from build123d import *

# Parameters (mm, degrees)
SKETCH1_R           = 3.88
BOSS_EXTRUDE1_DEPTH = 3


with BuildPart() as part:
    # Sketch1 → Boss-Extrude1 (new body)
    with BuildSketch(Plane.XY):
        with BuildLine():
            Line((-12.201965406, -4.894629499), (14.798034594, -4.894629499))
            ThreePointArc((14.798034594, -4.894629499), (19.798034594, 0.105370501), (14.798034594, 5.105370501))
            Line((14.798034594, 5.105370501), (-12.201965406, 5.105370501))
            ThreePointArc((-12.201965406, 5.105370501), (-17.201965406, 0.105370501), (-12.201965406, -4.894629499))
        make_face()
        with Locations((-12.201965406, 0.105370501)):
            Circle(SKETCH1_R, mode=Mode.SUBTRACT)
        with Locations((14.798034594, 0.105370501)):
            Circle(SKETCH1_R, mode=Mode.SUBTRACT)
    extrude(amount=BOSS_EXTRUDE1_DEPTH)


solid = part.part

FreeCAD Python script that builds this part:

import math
import FreeCAD as App
import Part
import Sketcher

V = App.Vector

doc = App.newDocument("Part")
body = doc.addObject("PartDesign::Body", "Body")

sketch1 = body.newObject("Sketcher::SketchObject", "Sketch")
sketch1.AttachmentSupport = (doc.getObject("XY_Plane"), [""])
sketch1.MapMode = "FlatFace"
sketch1.addGeometry([
    Part.LineSegment(V(-12.2, -4.9, 0), V(14.8, -4.9, 0)),
    Part.ArcOfCircle(Part.Circle(V(14.8, 0.1, 0), V(0, 0, 1), 5), math.radians(-90), math.radians(90)),
    Part.LineSegment(V(14.8, 5.1, 0), V(-12.2, 5.1, 0)),
    Part.ArcOfCircle(Part.Circle(V(-12.2, 0.1, 0), V(0, 0, 1), 5), math.radians(90), math.radians(270)),
    Part.Circle(V(-12.2, 0.1, 0), V(0, 0, 1), 3.9),
    Part.Circle(V(14.8, 0.1, 0), V(0, 0, 1), 3.9),
], False)
sketch1.addConstraint([
    Sketcher.Constraint("Tangent", 0, 2, 1, 1),
    Sketcher.Constraint("Tangent", 1, 2, 2, 1),
    Sketcher.Constraint("Tangent", 2, 2, 3, 1),
    Sketcher.Constraint("Tangent", 3, 2, 0, 1),
    Sketcher.Constraint("Horizontal", 0),
    Sketcher.Constraint("Horizontal", 2),
    Sketcher.Constraint("Coincident", 4, 3, 3, 3),
    Sketcher.Constraint("Coincident", 5, 3, 1, 3),
    Sketcher.Constraint("Equal", 4, 5),
    Sketcher.Constraint("Radius", 1, 5.0),
    Sketcher.Constraint("Diameter", 4, 7.76),
    Sketcher.Constraint("DistanceX", 0, 1, 0, 2, 27.0),
    Sketcher.Constraint("DistanceY", -1, 1, 1, 3, 0.105371),
    Sketcher.Constraint("DistanceX", -1, 1, 1, 3, 14.798035),
])
pad1 = body.newObject("PartDesign::Pad", "Pad")
pad1.Profile = sketch1
pad1.Length = 3

doc.recompute()
